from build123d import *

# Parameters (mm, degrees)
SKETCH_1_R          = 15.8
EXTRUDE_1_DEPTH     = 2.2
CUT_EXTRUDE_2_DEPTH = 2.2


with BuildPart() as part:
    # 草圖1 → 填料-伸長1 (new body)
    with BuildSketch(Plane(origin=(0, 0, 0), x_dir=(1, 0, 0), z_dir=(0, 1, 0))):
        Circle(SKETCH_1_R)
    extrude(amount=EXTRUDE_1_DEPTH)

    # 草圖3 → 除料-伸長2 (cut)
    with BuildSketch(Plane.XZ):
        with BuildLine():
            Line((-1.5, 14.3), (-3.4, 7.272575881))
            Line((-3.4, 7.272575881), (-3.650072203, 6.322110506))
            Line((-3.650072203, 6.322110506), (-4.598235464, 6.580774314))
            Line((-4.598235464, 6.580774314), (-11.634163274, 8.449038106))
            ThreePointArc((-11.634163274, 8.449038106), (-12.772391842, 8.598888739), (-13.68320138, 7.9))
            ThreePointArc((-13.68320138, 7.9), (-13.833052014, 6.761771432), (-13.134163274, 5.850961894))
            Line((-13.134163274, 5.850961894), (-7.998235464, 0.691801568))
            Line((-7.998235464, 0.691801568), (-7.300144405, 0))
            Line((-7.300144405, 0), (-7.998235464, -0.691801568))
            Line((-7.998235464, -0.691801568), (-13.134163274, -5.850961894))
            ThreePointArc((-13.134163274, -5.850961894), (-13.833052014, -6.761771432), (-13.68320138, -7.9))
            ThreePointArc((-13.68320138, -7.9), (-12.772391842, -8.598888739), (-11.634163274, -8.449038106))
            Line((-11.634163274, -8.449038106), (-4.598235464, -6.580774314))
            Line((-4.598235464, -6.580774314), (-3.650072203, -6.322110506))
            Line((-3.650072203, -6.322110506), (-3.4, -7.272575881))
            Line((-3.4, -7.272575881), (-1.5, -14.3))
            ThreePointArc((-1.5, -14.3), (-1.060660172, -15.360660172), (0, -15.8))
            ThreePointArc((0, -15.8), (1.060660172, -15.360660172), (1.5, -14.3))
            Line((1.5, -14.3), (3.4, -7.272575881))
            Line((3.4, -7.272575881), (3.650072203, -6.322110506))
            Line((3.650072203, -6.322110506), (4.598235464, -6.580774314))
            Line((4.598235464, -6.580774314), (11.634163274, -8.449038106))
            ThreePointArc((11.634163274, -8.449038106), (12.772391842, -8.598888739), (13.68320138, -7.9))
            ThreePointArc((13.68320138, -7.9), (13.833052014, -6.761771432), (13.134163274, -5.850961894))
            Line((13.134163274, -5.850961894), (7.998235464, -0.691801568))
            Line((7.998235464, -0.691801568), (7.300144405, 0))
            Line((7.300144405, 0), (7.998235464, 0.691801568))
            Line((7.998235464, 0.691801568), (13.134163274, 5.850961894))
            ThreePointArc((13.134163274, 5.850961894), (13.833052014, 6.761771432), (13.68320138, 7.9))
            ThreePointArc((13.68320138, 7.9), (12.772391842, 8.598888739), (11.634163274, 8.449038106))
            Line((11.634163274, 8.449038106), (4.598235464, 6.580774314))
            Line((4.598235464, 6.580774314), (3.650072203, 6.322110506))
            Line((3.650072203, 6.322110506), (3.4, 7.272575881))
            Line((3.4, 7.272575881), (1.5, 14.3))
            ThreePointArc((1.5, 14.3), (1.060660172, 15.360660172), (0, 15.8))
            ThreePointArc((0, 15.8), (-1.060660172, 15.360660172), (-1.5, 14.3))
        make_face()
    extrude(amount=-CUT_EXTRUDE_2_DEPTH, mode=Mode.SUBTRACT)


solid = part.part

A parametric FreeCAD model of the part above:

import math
import FreeCAD as App
import Part
import Sketcher
Q = App.Units.Quantity

doc = App.newDocument("Part")
body = doc.addObject("PartDesign::Body", "Body")
body.AllowCompound = True

sketch1 = body.newObject("Sketcher::SketchObject", "Sketch")
sketch1.AttachmentSupport = (doc.getObject("XZ_Plane"), [""])
sketch1.MapMode = "FlatFace"
sketch1.addGeometry(Part.Circle(App.Vector(0, 0, 0), App.Vector(0, 0, 1), 16), False)
sketch1.addConstraint([
    Sketcher.Constraint("Coincident", 0, 3, -1, 1),
    Sketcher.Constraint("Diameter", 0, Q("31.6 mm")),
])
pad1 = body.newObject("PartDesign::Pad", "Pad")
pad1.Profile = sketch1
pad1.Length = 2.2
pad1.Reversed = True

sketch2 = body.newObject("Sketcher::SketchObject", "Sketch001")
sketch2.AttachmentSupport = (doc.getObject("XZ_Plane"), [""])
sketch2.MapMode = "FlatFace"
sketch2.addGeometry([
    Part.LineSegment(App.Vector(-1.5, 14.3, 0), App.Vector(-3.4, 7.3, 0)),
    Part.LineSegment(App.Vector(-3.4, 7.3, 0), App.Vector(-3.7, 6.3, 0)),
    Part.LineSegment(App.Vector(-3.7, 6.3, 0), App.Vector(-4.6, 6.6, 0)),
    Part.LineSegment(App.Vector(-4.6, 6.6, 0), App.Vector(-11.6, 8.4, 0)),
    Part.ArcOfCircle(Part.Circle(App.Vector(-12.4, 7.1, 0), App.Vector(0, 0, 1), 1.5), math.radians(60), math.radians(150)),
    Part.ArcOfCircle(Part.Circle(App.Vector(-12.4, 7.2, 0), App.Vector(0, 0, 1), 1.5), math.radians(150), math.radians(240)),
    Part.LineSegment(App.Vector(-13.1, 5.9, 0), App.Vector(-8, 0.7, 0)),
    Part.LineSegment(App.Vector(-8, 0.7, 0), App.Vector(-7.3, 0, 0)),
    Part.LineSegment(App.Vector(-7.3, 0, 0), App.Vector(-8, -0.7, 0)),
    Part.LineSegment(App.Vector(-8, -0.7, 0), App.Vector(-13.1, -5.9, 0)),
    Part.ArcOfCircle(Part.Circle(App.Vector(-12.4, -7.2, 0), App.Vector(0, 0, 1), 1.5), math.radians(120), math.radians(210)),
    Part.ArcOfCircle(Part.Circle(App.Vector(-12.4, -7.1, 0), App.Vector(0, 0, 1), 1.5), math.radians(-150), math.radians(-60)),
    Part.LineSegment(App.Vector(-11.6, -8.4, 0), App.Vector(-4.6, -6.6, 0)),
    Part.LineSegment(App.Vector(-4.6, -6.6, 0), App.Vector(-3.7, -6.3, 0)),
    Part.LineSegment(App.Vector(-3.7, -6.3, 0), App.Vector(-3.4, -7.3, 0)),
    Part.LineSegment(App.Vector(-3.4, -7.3, 0), App.Vector(-1.5, -14.3, 0)),
    Part.ArcOfCircle(Part.Circle(App.Vector(0, -14.3, 0), App.Vector(0, 0, 1), 1.5), math.radians(180), math.radians(270)),
    Part.ArcOfCircle(Part.Circle(App.Vector(0, -14.3, 0), App.Vector(0, 0, 1), 1.5), math.radians(-90), math.radians(0)),
    Part.LineSegment(App.Vector(1.5, -14.3, 0), App.Vector(3.4, -7.3, 0)),
    Part.LineSegment(App.Vector(3.4, -7.3, 0), App.Vector(3.7, -6.3, 0)),
    Part.LineSegment(App.Vector(3.7, -6.3, 0), App.Vector(4.6, -6.6, 0)),
    Part.LineSegment(App.Vector(4.6, -6.6, 0), App.Vector(11.6, -8.4, 0)),
    Part.ArcOfCircle(Part.Circle(App.Vector(12.4, -7.1, 0), App.Vector(0, 0, 1), 1.5), math.radians(-120), math.radians(-30)),
    Part.ArcOfCircle(Part.Circle(App.Vector(12.4, -7.2, 0), App.Vector(0, 0, 1), 1.5), math.radians(-30), math.radians(60)),
    Part.LineSegment(App.Vector(13.1, -5.9, 0), App.Vector(8, -0.7, 0)),
    Part.LineSegment(App.Vector(8, -0.7, 0), App.Vector(7.3, 0, 0)),
    Part.LineSegment(App.Vector(7.3, 0, 0), App.Vector(8, 0.7, 0)),
    Part.LineSegment(App.Vector(8, 0.7, 0), App.Vector(13.1, 5.9, 0)),
    Part.ArcOfCircle(Part.Circle(App.Vector(12.4, 7.2, 0), App.Vector(0, 0, 1), 1.5), math.radians(-60), math.radians(30)),
    Part.ArcOfCircle(Part.Circle(App.Vector(12.4, 7.1, 0), App.Vector(0, 0, 1), 1.5), math.radians(30), math.radians(120)),
    Part.LineSegment(App.Vector(11.6, 8.4, 0), App.Vector(4.6, 6.6, 0)),
    Part.LineSegment(App.Vector(4.6, 6.6, 0), App.Vector(3.7, 6.3, 0)),
    Part.LineSegment(App.Vector(3.7, 6.3, 0), App.Vector(3.4, 7.3, 0)),
    Part.LineSegment(App.Vector(3.4, 7.3, 0), App.Vector(1.5, 14.3, 0)),
    Part.ArcOfCircle(Part.Circle(App.Vector(0, 14.3, 0), App.Vector(0, 0, 1), 1.5), math.radians(0), math.radians(90)),
    Part.ArcOfCircle(Part.Circle(App.Vector(0, 14.3, 0), App.Vector(0, 0, 1), 1.5), math.radians(90), math.radians(180)),
], False)
sketch2.addConstraint([
    Sketcher.Constraint("Coincident", 0, 2, 1, 1),
    Sketcher.Constraint("Coincident", 1, 2, 2, 1),
    Sketcher.Constraint("Coincident", 2, 2, 3, 1),
    Sketcher.Constraint("Coincident", 3, 2, 4, 1),
    Sketcher.Constraint("Tangent", 4, 2, 5, 1),
    Sketcher.Constraint("Coincident", 5, 2, 6, 1),
    Sketcher.Constraint("Coincident", 6, 2, 7, 1),
    Sketcher.Constraint("Coincident", 7, 2, 8, 1),
    Sketcher.Constraint("Coincident", 8, 2, 9, 1),
    Sketcher.Constraint("Coincident", 9, 2, 10, 1),
    Sketcher.Constraint("Tangent", 10, 2, 11, 1),
    Sketcher.Constraint("Coincident", 11, 2, 12, 1),
    Sketcher.Constraint("Coincident", 12, 2, 13, 1),
    Sketcher.Constraint("Coincident", 13, 2, 14, 1),
    Sketcher.Constraint("Coincident", 14, 2, 15, 1),
    Sketcher.Constraint("Coincident", 15, 2, 16, 1),
    Sketcher.Constraint("Tangent", 16, 2, 17, 1),
    Sketcher.Constraint("Coincident", 17, 2, 18, 1),
    Sketcher.Constraint("Coincident", 18, 2, 19, 1),
    Sketcher.Constraint("Coincident", 19, 2, 20, 1),
    Sketcher.Constraint("Coincident", 20, 2, 21, 1),
    Sketcher.Constraint("Coincident", 21, 2, 22, 1),
    Sketcher.Constraint("Tangent", 22, 2, 23, 1),
    Sketcher.Constraint("Coincident", 23, 2, 24, 1),
    Sketcher.Constraint("Coincident", 24, 2, 25, 1),
    Sketcher.Constraint("Coincident", 25, 2, 26, 1),
    Sketcher.Constraint("Coincident", 26, 2, 27, 1),
    Sketcher.Constraint("Coincident", 27, 2, 28, 1),
    Sketcher.Constraint("Tangent", 28, 2, 29, 1),
    Sketcher.Constraint("Coincident", 29, 2, 30, 1),
    Sketcher.Constraint("Coincident", 30, 2, 31, 1),
    Sketcher.Constraint("Coincident", 31, 2, 32, 1),
    Sketcher.Constraint("Coincident", 32, 2, 33, 1),
    Sketcher.Constraint("Coincident", 33, 2, 34, 1),
    Sketcher.Constraint("Tangent", 34, 2, 35, 1),
    Sketcher.Constraint("Coincident", 35, 2, 0, 1),
    Sketcher.Constraint("Equal", 4, 5),
    Sketcher.Constraint("Equal", 5, 10),
    Sketcher.Constraint("Equal", 10, 11),
    Sketcher.Constraint("Equal", 11, 16),
    Sketcher.Constraint("Equal", 16, 17),
    Sketcher.Constraint("Equal", 17, 22),
    Sketcher.Constraint("Equal", 22, 23),
    Sketcher.Constraint("Equal", 23, 28),
    Sketcher.Constraint("Equal", 28, 29),
    Sketcher.Constraint("Equal", 29, 34),
    Sketcher.Constraint("Equal", 34, 35),
    Sketcher.Constraint("Symmetric", 4, 3, 22, 3, -1, 1),
    Sketcher.Constraint("Symmetric", 10, 3, 28, 3, -1, 1),
    Sketcher.Constraint("Symmetric", 16, 3, 34, 3, -1, 1),
    Sketcher.Constraint("Symmetric", 0, 2, 18, 2, -1, 1),
    Sketcher.Constraint("Symmetric", 1, 2, 19, 2, -1, 1),
    Sketcher.Constraint("Symmetric", 2, 2, 20, 2, -1, 1),
    Sketcher.Constraint("Symmetric", 6, 2, 24, 2, -1, 1),
    Sketcher.Constraint("Symmetric", 7, 2, 25, 2, -1, 1),
    Sketcher.Constraint("Symmetric", 8, 2, 26, 2, -1, 1),
    Sketcher.Constraint("Symmetric", 12, 2, 30, 2, -1, 1),
    Sketcher.Constraint("Symmetric", 13, 2, 31, 2, -1, 1),
    Sketcher.Constraint("Symmetric", 14, 2, 32, 2, -1, 1),
    Sketcher.Constraint("Symmetric", 10, 3, 22, 3, -2),
    Sketcher.Constraint("Symmetric", 15, 2, 17, 2, -2),
    Sketcher.Constraint("Symmetric", 14, 2, 18, 2, -2),
    Sketcher.Constraint("Symmetric", 13, 2, 19, 2, -2),
    Sketcher.Constraint("Symmetric", 12, 2, 20, 2, -2),
    Sketcher.Constraint("Symmetric", 8, 2, 24, 2, -2),
    Sketcher.Constraint("PointOnObject", 7, 2, -1),
    Sketcher.Constraint("PointOnObject", 16, 2, -2),
    Sketcher.Constraint("PointOnObject", 34, 2, -2),
    Sketcher.Constraint("Parallel", 0, 18),
    Sketcher.Constraint("Parallel", 3, 21),
    Sketcher.Constraint("Parallel", 6, 24),
    Sketcher.Constraint("Parallel", 9, 27),
    Sketcher.Constraint("Parallel", 12, 30),
    Sketcher.Constraint("Parallel", 15, 33),
    Sketcher.Constraint("Horizontal", 17, 3, 15, 2),
    Sketcher.Constraint("Horizontal", 11, 2, 21, 2),
    Sketcher.Constraint("Horizontal", 10, 2, 22, 2),
    Sketcher.Constraint("Horizontal", 9, 2, 23, 2),
    Sketcher.Constraint("Horizontal", 4, 2, 28, 2),
    Sketcher.Constraint("Vertical", 4, 2, 10, 2),
    Sketcher.Constraint("Equal", 1, 2),
    Sketcher.Constraint("Equal", 0, 3),
    Sketcher.Constraint("Equal", 3, 6),
    Sketcher.Constraint("Equal", 2, 7),
    Sketcher.Constraint("Radius", 4, Q("1.5 mm")),
    Sketcher.Constraint("DistanceY", 16, 3, -1, 1, Q("14.3 mm")),
    Sketcher.Constraint("DistanceX", 0, 2, -1, 1, Q("3.4 mm")),
    Sketcher.Constraint("DistanceY", -1, 1, 4, 2, Q("7.9 mm")),
    Sketcher.Constraint("DistanceY", 10, 3, 4, 3, Q("14.3 mm")),
    Sketcher.Constraint("DistanceX", 5, 2, 3, 2, Q("1.5 mm")),
    Sketcher.Constraint("DistanceX", 6, 2, 2, 2, Q("3.4 mm")),
    Sketcher.Constraint("DistanceX", 5, 3, 3, 2, Q("0.75 mm")),
    Sketcher.Constraint("DistanceX", 4, 2, -1, 1, Q("13.683201 mm")),
    Sketcher.Constraint("DistanceY", -1, 1, 6, 2, Q("0.691802 mm")),
    Sketcher.Constraint("DistanceY", 2, 2, 0, 2, Q("0.691802 mm")),
    Sketcher.Constraint("DistanceY", -1, 1, 1, 2, Q("6.322111 mm")),
])
pocket1 = body.newObject("PartDesign::Pocket", "Pocket")
pocket1.Profile = sketch2
pocket1.Length = 2.2

doc.recompute()
